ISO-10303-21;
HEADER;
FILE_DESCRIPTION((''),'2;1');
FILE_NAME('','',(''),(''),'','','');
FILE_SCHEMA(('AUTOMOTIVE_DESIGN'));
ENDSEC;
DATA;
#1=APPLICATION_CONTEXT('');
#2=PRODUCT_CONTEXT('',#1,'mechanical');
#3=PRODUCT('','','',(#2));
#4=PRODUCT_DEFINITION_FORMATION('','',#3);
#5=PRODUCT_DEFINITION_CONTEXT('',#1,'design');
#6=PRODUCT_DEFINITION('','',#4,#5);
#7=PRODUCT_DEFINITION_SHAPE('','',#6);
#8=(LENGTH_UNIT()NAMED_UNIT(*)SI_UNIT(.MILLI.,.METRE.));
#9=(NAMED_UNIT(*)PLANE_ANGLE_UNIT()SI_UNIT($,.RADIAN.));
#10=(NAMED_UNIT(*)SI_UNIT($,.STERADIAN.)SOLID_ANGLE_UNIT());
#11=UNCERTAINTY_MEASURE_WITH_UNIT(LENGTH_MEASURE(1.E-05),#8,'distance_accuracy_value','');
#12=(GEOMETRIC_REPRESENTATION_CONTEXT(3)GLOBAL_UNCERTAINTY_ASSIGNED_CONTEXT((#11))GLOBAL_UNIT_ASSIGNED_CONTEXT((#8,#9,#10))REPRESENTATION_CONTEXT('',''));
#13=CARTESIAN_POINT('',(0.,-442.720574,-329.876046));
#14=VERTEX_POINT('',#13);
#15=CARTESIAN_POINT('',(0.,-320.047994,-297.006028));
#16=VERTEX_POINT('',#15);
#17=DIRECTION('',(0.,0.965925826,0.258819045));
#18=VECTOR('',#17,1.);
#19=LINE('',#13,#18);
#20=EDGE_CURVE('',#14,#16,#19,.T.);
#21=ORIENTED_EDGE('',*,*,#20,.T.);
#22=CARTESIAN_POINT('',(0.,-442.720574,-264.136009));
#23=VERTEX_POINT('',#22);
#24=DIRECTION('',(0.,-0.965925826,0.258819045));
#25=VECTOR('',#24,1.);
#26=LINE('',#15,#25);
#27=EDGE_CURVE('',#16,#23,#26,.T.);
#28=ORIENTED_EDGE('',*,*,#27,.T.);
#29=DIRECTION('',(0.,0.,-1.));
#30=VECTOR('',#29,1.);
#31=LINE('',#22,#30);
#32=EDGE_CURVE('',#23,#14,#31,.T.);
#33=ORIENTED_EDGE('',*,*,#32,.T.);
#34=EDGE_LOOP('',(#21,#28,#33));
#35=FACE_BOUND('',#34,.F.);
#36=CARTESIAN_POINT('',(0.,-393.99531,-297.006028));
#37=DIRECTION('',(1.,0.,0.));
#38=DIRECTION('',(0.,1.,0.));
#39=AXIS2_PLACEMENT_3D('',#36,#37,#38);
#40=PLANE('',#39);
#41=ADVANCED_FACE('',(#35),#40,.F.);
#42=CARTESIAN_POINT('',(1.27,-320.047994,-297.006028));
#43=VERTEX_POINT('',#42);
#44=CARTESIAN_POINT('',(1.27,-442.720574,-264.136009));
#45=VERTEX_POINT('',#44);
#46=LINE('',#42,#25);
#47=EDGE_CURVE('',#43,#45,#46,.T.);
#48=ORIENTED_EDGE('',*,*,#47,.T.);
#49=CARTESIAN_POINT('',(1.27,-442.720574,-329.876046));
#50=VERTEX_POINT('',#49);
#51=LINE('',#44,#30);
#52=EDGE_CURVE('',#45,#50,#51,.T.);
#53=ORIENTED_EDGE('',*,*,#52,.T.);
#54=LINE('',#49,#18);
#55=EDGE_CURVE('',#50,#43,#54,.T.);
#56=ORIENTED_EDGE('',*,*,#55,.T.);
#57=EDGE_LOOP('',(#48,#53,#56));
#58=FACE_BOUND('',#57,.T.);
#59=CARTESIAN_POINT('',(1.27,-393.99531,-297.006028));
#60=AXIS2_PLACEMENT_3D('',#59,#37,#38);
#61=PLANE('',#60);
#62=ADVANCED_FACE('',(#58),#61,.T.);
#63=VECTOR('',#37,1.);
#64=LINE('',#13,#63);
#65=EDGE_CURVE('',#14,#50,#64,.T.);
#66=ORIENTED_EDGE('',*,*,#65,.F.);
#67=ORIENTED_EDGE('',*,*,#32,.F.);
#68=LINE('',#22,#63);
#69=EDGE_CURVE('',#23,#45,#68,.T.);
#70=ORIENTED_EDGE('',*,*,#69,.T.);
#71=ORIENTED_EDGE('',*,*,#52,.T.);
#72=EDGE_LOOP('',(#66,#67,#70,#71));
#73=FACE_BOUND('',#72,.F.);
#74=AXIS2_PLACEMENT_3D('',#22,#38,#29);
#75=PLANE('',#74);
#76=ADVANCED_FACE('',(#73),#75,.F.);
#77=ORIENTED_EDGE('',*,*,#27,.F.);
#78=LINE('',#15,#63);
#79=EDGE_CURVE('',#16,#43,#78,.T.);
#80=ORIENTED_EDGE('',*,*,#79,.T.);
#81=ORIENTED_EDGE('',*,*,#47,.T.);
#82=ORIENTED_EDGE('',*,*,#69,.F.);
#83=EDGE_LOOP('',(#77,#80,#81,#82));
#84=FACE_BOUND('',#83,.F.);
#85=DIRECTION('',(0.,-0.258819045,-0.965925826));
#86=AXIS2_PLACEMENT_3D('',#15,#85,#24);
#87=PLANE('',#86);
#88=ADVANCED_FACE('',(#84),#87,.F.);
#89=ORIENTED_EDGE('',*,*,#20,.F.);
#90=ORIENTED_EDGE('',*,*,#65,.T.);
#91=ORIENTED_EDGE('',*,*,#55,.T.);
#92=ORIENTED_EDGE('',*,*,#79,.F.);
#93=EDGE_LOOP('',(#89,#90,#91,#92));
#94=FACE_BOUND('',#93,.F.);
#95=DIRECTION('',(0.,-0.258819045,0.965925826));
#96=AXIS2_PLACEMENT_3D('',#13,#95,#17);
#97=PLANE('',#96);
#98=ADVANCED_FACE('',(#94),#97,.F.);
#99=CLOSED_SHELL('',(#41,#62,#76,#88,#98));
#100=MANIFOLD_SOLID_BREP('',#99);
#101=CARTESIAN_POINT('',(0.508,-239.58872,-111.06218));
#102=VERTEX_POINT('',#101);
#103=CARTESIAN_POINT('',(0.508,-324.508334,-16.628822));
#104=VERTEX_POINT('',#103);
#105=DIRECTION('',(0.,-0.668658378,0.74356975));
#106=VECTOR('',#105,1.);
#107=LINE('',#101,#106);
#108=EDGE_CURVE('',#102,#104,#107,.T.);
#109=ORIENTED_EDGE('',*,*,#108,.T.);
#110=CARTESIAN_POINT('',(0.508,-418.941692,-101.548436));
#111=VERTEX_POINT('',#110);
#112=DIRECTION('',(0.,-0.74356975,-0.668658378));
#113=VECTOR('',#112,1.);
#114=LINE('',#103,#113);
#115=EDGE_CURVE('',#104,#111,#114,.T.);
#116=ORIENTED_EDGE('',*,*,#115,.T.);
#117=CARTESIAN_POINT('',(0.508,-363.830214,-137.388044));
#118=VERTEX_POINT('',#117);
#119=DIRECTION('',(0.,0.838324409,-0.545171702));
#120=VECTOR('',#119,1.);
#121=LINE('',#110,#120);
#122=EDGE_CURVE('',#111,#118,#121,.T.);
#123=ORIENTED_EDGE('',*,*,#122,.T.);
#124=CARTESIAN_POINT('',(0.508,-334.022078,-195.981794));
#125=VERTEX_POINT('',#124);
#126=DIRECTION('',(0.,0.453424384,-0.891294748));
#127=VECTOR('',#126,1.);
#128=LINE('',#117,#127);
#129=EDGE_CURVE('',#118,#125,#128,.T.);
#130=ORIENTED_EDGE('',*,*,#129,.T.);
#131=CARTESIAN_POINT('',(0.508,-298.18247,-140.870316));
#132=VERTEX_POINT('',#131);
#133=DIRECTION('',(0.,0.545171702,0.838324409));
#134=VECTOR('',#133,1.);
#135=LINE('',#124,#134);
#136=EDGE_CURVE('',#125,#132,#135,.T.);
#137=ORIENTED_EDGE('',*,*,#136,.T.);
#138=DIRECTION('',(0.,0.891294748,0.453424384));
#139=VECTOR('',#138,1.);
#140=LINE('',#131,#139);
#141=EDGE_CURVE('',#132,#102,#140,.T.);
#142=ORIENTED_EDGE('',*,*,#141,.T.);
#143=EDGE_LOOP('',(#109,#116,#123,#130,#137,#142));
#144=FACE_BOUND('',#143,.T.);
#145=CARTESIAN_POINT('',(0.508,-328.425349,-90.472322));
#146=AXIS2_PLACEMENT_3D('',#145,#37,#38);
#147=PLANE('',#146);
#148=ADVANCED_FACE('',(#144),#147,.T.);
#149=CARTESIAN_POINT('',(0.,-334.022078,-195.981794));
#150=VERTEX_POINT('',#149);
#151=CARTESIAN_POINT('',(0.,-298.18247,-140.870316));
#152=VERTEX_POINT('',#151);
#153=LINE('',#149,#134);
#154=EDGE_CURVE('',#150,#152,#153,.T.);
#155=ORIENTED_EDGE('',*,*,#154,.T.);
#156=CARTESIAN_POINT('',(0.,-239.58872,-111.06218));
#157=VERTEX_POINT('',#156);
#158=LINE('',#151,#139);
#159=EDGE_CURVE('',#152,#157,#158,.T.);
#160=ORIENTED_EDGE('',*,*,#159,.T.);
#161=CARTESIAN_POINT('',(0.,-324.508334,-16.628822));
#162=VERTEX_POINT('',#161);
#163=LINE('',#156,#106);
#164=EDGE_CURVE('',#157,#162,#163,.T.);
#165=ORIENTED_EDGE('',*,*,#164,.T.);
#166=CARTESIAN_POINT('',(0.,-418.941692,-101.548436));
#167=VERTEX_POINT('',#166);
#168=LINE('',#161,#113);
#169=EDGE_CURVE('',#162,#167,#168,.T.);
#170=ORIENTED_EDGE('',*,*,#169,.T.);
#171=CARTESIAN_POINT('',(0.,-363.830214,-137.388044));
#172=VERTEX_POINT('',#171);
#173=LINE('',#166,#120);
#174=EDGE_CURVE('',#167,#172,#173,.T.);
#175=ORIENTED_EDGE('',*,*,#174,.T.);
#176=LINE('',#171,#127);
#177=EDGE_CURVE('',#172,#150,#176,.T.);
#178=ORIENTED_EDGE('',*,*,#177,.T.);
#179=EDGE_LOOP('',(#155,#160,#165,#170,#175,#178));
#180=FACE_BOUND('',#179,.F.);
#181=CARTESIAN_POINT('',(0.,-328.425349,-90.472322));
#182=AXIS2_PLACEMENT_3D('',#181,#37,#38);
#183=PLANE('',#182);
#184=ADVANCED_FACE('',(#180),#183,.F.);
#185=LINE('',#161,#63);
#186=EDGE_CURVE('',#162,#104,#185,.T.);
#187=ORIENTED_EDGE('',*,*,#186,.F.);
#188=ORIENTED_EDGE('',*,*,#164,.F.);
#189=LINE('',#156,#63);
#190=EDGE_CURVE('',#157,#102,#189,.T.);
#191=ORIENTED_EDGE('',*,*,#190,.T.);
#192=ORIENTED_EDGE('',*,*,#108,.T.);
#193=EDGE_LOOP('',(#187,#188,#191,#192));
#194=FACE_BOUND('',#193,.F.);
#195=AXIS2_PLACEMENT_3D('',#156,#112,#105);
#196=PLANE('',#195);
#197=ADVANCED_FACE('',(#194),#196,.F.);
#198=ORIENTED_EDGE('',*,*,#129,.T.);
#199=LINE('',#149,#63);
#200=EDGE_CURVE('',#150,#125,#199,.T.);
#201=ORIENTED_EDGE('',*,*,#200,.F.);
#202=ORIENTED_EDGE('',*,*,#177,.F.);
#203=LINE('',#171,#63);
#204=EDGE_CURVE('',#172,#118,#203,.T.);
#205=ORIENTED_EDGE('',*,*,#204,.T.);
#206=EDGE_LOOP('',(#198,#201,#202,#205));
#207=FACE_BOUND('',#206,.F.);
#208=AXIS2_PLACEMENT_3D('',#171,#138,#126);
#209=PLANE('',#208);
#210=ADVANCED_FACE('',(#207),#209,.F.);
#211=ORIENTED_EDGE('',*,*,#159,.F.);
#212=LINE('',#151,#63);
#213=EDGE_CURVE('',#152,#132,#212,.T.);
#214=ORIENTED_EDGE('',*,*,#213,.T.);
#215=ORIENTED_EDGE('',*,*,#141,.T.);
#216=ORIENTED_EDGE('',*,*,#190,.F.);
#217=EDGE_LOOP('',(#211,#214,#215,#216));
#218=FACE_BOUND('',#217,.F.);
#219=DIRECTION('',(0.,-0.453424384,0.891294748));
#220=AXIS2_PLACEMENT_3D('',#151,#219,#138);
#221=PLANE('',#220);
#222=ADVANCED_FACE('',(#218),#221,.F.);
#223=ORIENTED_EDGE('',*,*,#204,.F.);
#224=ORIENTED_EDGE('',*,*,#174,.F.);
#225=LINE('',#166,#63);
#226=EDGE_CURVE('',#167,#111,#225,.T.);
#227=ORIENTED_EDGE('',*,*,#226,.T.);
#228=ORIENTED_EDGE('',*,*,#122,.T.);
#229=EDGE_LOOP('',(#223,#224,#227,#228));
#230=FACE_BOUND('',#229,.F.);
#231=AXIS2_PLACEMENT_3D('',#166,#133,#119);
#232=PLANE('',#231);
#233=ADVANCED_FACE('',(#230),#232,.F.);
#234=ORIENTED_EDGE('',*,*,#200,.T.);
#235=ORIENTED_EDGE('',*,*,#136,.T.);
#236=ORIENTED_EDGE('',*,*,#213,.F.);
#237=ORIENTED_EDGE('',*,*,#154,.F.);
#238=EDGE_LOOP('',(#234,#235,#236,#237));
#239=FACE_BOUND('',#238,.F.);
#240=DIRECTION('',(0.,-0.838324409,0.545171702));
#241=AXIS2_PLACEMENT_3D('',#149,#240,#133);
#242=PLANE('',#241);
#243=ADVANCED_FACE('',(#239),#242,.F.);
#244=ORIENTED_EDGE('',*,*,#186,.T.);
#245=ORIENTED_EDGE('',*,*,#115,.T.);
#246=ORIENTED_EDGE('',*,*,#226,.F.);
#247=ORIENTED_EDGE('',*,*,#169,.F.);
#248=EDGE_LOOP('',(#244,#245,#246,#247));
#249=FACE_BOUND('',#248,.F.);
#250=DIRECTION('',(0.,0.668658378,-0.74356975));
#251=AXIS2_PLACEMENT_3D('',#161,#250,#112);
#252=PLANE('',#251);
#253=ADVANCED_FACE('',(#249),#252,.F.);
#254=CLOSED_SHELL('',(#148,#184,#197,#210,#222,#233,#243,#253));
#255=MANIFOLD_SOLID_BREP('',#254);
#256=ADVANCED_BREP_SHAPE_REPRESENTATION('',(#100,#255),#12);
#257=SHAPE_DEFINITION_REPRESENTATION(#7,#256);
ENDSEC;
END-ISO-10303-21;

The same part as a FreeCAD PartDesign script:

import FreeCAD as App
import Part
import Sketcher
Q = App.Units.Quantity

doc = App.newDocument("Part")
body = doc.addObject("PartDesign::Body", "Body")

# Sketch on YZ plane
sketch1 = body.newObject("Sketcher::SketchObject", "Sketch")
sketch1.AttachmentSupport = (doc.getObject("YZ_Plane"), [""])
sketch1.MapMode = "FlatFace"
sketch1.addGeometry([
    Part.LineSegment(App.Vector(-320, -297, 0), App.Vector(-443, -264, 0)),
    Part.LineSegment(App.Vector(-443, -264, 0), App.Vector(-443, -330, 0)),
    Part.LineSegment(App.Vector(-443, -330, 0), App.Vector(-320, -297, 0)),
], False)
sketch1.addConstraint([
    Sketcher.Constraint("Coincident", 0, 2, 1, 1),
    Sketcher.Constraint("Coincident", 1, 2, 2, 1),
    Sketcher.Constraint("Coincident", 2, 2, 0, 1),
    Sketcher.Constraint("Vertical", 1),
    Sketcher.Constraint("Equal", 0, 2),
    Sketcher.Constraint("Distance", 0, Q("5 in")),
    Sketcher.Constraint("Angle", 0, Q("165 deg")),
    Sketcher.Constraint("DistanceY", 0, 2, -1, 1, 264.136009),
    Sketcher.Constraint("DistanceX", 0, 2, -1, 1, 442.720574),
])
pad1 = body.newObject("PartDesign::Pad", "Pad")
pad1.Profile = sketch1
pad1.Length = Q("0.05 in")
body2 = doc.addObject("PartDesign::Body", "Body001")

# Sketch on YZ plane
sketch2 = body2.newObject("Sketcher::SketchObject", "Sketch001")
sketch2.AttachmentSupport = (doc.getObject("YZ_Plane001"), [""])
sketch2.MapMode = "FlatFace"
sketch2.addGeometry([
    Part.LineSegment(App.Vector(-364, -137, 0), App.Vector(-334, -196, 0)),  # 0
    Part.LineSegment(App.Vector(-334, -196, 0), App.Vector(-298, -141, 0)),  # 1
    Part.LineSegment(App.Vector(-298, -141, 0), App.Vector(-240, -111, 0)),  # 2
    Part.LineSegment(App.Vector(-240, -111, 0), App.Vector(-325, -17, 0)),  # 3
    Part.LineSegment(App.Vector(-325, -17, 0), App.Vector(-419, -102, 0)),  # 4
    Part.LineSegment(App.Vector(-419, -102, 0), App.Vector(-364, -137, 0)),  # 5
], False)
sketch2.addConstraint([
    Sketcher.Constraint("Coincident", 0, 2, 1, 1),
    Sketcher.Constraint("Coincident", 1, 2, 2, 1),
    Sketcher.Constraint("Coincident", 2, 2, 3, 1),
    Sketcher.Constraint("Coincident", 3, 2, 4, 1),
    Sketcher.Constraint("Coincident", 4, 2, 5, 1),
    Sketcher.Constraint("Coincident", 5, 2, 0, 1),
    Sketcher.Constraint("Perpendicular", 0, 2),
    Sketcher.Constraint("Perpendicular", 3, 4),
    Sketcher.Constraint("Perpendicular", 1, 5),
    Sketcher.Constraint("Equal", 0, 1),
    Sketcher.Constraint("Equal", 1, 2),
    Sketcher.Constraint("Equal", 3, 4),
    Sketcher.Constraint("Equal", 2, 5),
    Sketcher.Constraint("Distance", 3, Q("5 in")),
    Sketcher.Constraint("DistanceX", 4, 2, 1, 2, Q("4.7543001 in")),
    Sketcher.Constraint("DistanceX", 0, 2, -1, 1, 334.022078),
    Sketcher.Constraint("DistanceX", 1, 2, -1, 1, 298.18247),
    Sketcher.Constraint("DistanceY", 2, 2, -1, 1, 111.06218),
])
pad2 = body2.newObject("PartDesign::Pad", "Pad001")
pad2.Profile = sketch2
pad2.Length = Q("0.02 in")

doc.recompute()
